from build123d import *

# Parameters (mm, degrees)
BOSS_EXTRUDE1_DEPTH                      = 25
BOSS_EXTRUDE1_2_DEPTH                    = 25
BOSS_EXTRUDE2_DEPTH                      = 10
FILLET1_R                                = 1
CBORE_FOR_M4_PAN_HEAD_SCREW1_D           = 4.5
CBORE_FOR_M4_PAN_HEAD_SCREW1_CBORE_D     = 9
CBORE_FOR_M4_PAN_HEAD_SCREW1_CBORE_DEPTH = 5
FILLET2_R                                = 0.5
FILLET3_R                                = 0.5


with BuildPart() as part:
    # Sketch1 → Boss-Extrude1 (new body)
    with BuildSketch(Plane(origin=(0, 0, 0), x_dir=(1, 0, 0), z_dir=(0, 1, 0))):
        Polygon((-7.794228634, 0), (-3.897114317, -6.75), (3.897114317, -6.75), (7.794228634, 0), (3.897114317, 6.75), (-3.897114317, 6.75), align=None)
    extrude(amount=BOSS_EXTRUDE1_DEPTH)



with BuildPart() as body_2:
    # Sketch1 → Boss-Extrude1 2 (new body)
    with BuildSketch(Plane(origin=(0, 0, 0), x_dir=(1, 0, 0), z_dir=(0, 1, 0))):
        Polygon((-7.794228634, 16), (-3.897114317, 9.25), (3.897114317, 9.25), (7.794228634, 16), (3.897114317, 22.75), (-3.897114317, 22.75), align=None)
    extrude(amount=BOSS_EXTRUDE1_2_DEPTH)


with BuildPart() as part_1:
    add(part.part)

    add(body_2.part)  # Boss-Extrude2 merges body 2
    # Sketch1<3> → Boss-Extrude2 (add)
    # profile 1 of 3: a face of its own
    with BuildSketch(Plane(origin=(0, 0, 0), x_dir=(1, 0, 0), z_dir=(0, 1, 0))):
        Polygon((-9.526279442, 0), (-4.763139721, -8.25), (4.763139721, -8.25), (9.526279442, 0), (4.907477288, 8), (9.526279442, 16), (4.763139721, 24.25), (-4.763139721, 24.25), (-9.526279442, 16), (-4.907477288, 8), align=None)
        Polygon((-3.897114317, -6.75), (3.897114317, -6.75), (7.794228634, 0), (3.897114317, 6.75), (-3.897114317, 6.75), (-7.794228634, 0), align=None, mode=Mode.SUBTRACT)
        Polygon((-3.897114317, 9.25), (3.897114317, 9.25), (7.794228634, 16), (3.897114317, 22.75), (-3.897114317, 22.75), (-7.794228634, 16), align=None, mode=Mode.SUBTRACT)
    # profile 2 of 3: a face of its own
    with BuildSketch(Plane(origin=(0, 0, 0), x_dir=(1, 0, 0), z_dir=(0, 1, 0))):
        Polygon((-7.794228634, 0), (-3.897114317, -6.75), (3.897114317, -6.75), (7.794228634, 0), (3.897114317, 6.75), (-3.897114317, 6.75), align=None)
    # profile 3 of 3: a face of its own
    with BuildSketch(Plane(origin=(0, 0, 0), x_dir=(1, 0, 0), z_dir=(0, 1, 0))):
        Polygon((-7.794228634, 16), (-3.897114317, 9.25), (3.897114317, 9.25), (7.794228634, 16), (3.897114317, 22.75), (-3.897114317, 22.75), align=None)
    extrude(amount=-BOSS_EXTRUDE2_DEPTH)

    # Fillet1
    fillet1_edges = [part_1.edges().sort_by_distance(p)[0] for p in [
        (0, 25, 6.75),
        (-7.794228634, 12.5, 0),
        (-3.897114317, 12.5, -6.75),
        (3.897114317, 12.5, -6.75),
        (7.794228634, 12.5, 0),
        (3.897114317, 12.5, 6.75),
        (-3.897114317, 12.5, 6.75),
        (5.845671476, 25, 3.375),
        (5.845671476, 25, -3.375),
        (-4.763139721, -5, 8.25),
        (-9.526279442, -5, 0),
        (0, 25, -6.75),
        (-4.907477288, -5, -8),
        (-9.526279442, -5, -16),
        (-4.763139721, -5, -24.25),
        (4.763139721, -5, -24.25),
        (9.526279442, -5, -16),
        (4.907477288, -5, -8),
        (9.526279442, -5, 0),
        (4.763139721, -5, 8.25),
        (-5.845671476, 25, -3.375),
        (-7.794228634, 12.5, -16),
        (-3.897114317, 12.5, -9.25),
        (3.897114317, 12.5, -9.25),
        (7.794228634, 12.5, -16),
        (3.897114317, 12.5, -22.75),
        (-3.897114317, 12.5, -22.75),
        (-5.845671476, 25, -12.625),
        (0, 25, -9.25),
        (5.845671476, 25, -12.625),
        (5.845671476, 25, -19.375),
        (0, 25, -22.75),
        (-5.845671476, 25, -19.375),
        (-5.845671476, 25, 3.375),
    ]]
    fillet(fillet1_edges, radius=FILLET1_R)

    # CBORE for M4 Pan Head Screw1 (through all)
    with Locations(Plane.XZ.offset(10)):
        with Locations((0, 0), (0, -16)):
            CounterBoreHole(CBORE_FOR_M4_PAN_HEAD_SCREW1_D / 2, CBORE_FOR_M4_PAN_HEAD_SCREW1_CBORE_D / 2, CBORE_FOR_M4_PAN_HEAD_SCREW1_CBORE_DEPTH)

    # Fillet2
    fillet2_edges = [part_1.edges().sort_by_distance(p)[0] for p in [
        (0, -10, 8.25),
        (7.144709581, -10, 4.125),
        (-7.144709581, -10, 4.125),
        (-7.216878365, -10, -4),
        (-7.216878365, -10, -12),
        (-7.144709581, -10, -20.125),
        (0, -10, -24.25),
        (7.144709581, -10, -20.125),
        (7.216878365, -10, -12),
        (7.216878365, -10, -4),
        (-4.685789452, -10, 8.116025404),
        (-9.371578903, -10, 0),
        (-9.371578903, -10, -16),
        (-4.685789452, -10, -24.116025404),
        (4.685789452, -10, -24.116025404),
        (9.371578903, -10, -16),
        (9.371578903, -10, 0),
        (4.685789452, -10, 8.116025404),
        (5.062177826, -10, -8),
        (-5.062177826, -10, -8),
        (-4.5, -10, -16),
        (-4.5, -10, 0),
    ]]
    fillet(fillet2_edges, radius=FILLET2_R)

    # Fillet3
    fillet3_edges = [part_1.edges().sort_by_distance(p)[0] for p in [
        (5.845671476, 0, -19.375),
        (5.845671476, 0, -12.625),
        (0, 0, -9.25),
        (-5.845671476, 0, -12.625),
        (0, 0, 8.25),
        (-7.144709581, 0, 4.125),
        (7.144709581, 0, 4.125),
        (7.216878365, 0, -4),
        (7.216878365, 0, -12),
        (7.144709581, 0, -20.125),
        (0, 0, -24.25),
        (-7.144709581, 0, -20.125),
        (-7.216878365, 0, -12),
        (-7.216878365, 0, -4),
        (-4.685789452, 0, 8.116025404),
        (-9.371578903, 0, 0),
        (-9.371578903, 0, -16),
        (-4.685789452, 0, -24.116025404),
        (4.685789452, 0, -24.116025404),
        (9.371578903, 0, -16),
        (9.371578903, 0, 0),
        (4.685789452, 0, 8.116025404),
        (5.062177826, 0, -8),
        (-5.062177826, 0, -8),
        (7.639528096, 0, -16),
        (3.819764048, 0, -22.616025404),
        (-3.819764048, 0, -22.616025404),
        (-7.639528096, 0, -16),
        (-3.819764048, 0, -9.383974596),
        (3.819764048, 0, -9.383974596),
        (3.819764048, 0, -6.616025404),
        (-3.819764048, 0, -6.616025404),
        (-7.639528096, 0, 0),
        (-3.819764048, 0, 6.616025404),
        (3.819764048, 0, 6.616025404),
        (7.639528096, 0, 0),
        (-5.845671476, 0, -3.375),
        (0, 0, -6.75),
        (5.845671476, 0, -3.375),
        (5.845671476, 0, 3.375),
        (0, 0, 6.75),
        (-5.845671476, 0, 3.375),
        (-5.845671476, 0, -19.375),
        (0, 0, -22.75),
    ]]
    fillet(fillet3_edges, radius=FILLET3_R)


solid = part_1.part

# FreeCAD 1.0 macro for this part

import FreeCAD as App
import Part
import Sketcher
from FreeCAD import Vector
Q = App.Units.Quantity


def edges_at(feature, points):
    """Names of the edges that pass closest to the given points."""
    edges = feature.Shape.Edges
    near = lambda p: min(range(len(edges)), key=lambda i: edges[i].distToShape(Part.Vertex(*p))[0])
    return sorted({f"Edge{near(p) + 1}" for p in points})


def add_polygon(sketch, points):
    """Adds a closed chain of lines whose ends are joined by coincident constraints."""
    first, n = sketch.GeometryCount, len(points)
    for a, b in zip(points, points[1:] + points[:1]):
        sketch.addGeometry(Part.LineSegment(App.Vector(*a, 0), App.Vector(*b, 0)), False)
    for i in range(n):
        sketch.addConstraint(Sketcher.Constraint("Coincident", first + i, 2, first + (i + 1) % n, 1))

doc = App.newDocument("Part")
params = doc.addObject("Spreadsheet::Sheet", "Params")
for row, (alias, value) in enumerate([
    ("pad1_length", "25 mm"),
    ("pad2_length", "25 mm"),
    ("pad3_length", "10 mm"),
    ("fillet_radius", "1 mm"),
    ("sketch4_diameter", "4.5 mm"),
    ("hole_diameter", "4.5 mm"),
    ("hole_cbore_diameter", "9 mm"),
    ("hole_cbore_depth", "5 mm"),
    ("fillet2_radius", "0.5 mm"),
    ("fillet3_radius", "0.5 mm"),
], start=1):
    params.set(f"A{row}", alias)
    params.set(f"B{row}", "=" + value)
    params.setAlias(f"B{row}", alias)

body = doc.addObject("PartDesign::Body", "Body")

# Sketch on XZ plane
sketch1 = body.newObject("Sketcher::SketchObject", "Sketch")
sketch1.AttachmentSupport = (doc.getObject("XZ_Plane"), [""])
sketch1.MapMode = "FlatFace"
add_polygon(sketch1, [(-8, 0), (-4, 7), (4, 7), (8, 0), (4, -7), (-4, -7)])  # lines 0-5
sketch1.addConstraint(Sketcher.Constraint("Horizontal", 1))
sketch1.addConstraint(Sketcher.Constraint("Horizontal", 4))
sketch1.addConstraint(Sketcher.Constraint("Symmetric", 0, 2, 3, 2, -1, 1))
sketch1.addConstraint(Sketcher.Constraint("Symmetric", 2, 2, 5, 2, -1, 1))
sketch1.addConstraint(Sketcher.Constraint("PointOnObject", 2, 2, -1))
sketch1.addConstraint(Sketcher.Constraint("Parallel", 2, 5))
sketch1.addConstraint(Sketcher.Constraint("Vertical", 1, 2, 3, 2))
sketch1.addConstraint(Sketcher.Constraint("Angle", 0, Q("60 deg")))
sketch1.addConstraint(Sketcher.Constraint("DistanceY", 3, 2, 1, 2, 13.5))
sketch1.addConstraint(Sketcher.Constraint("DistanceX", 1, 1, 1, 2, 7.794229))
pad1 = body.newObject("PartDesign::Pad", "Pad")
pad1.Profile = sketch1
pad1.setExpression("Length", "Params.pad1_length")
pad1.Reversed = True
body2 = doc.addObject("PartDesign::Body", "Body001")

# Sketch on XZ plane
sketch2 = body2.newObject("Sketcher::SketchObject", "Sketch001")
sketch2.AttachmentSupport = (doc.getObject("XZ_Plane001"), [""])
sketch2.MapMode = "FlatFace"
add_polygon(sketch2, [(-8, -16), (-4, -9), (4, -9), (8, -16), (4, -23), (-4, -23)])  # lines 0-5
sketch2.addConstraint(Sketcher.Constraint("Horizontal", 1))
sketch2.addConstraint(Sketcher.Constraint("Horizontal", 4))
sketch2.addConstraint(Sketcher.Constraint("Symmetric", 2, 2, 5, 2, -2))
sketch2.addConstraint(Sketcher.Constraint("Parallel", 0, 3))
sketch2.addConstraint(Sketcher.Constraint("Parallel", 2, 5))
sketch2.addConstraint(Sketcher.Constraint("Vertical", 1, 2, 3, 2))
sketch2.addConstraint(Sketcher.Constraint("Vertical", 0, 2, 4, 2))
sketch2.addConstraint(Sketcher.Constraint("Angle", 0, Q("60 deg")))
sketch2.addConstraint(Sketcher.Constraint("DistanceY", 2, 2, -1, 1, 16.0))
sketch2.addConstraint(Sketcher.Constraint("DistanceY", 3, 2, 1, 2, 13.5))
sketch2.addConstraint(Sketcher.Constraint("DistanceX", 1, 1, 1, 2, 7.794229))
pad2 = body2.newObject("PartDesign::Pad", "Pad001")
pad2.Profile = sketch2
pad2.setExpression("Length", "Params.pad2_length")
pad2.Reversed = True
body.AllowCompound = True
doc.recompute()

boolean = body.newObject("PartDesign::Boolean", "Boolean")
boolean.Type = "Fuse"
boolean.addObjects([body2])

# Sketch on XZ plane
sketch3 = body.newObject("Sketcher::SketchObject", "Sketch002")
sketch3.AttachmentSupport = (doc.getObject("XZ_Plane"), [""])
sketch3.MapMode = "FlatFace"
add_polygon(sketch3, [(-10, 0), (-5, 8), (5, 8), (10, 0), (5, -8), (10, -16), (5, -24), (-5, -24), (-10, -16), (-5, -8)])  # lines 0-9
sketch3.addConstraint(Sketcher.Constraint("Horizontal", 1))
sketch3.addConstraint(Sketcher.Constraint("Horizontal", 6))
sketch3.addConstraint(Sketcher.Constraint("Symmetric", 2, 2, 9, 2, -1, 1))
sketch3.addConstraint(Sketcher.Constraint("Symmetric", 4, 2, 7, 2, -2))
sketch3.addConstraint(Sketcher.Constraint("Symmetric", 3, 2, 8, 2, -2))
sketch3.addConstraint(Sketcher.Constraint("PointOnObject", 2, 2, -1))
sketch3.addConstraint(Sketcher.Constraint("Parallel", 0, 3))
sketch3.addConstraint(Sketcher.Constraint("Parallel", 2, 4))
sketch3.addConstraint(Sketcher.Constraint("Parallel", 3, 5))
sketch3.addConstraint(Sketcher.Constraint("Parallel", 4, 7))
sketch3.addConstraint(Sketcher.Constraint("Parallel", 5, 8))
sketch3.addConstraint(Sketcher.Constraint("Vertical", 2, 2, 4, 2))
sketch3.addConstraint(Sketcher.Constraint("Vertical", 1, 2, 5, 2))
sketch3.addConstraint(Sketcher.Constraint("Angle", 0, Q("60 deg")))
sketch3.addConstraint(Sketcher.Constraint("DistanceY", 3, 2, -1, 1, 8.0))
sketch3.addConstraint(Sketcher.Constraint("DistanceY", 5, 2, 1, 2, 32.5))
sketch3.addConstraint(Sketcher.Constraint("DistanceX", 1, 1, 1, 2, 9.526279))
pad3 = body.newObject("PartDesign::Pad", "Pad002")
pad3.Profile = sketch3
pad3.setExpression("Length", "Params.pad3_length")
doc.recompute()

fillet = body.newObject("PartDesign::Fillet", "Fillet")
fillet.Base = (pad3, edges_at(pad3, [
    (0, 25, 6.75),
    (-7.794, 12.5, 0),
    (-3.897, 12.5, -6.75),
    (3.897, 12.5, -6.75),
    (7.794, 12.5, 0),
    (3.897, 12.5, 6.75),
    (-3.897, 12.5, 6.75),
    (5.846, 25, 3.375),
    (5.846, 25, -3.375),
    (-4.763, -5, 8.25),
    (-9.526, -5, 0),
    (0, 25, -6.75),
    (-4.907, -5, -8),
    (-9.526, -5, -16),
    (-4.763, -5, -24.25),
    (4.763, -5, -24.25),
    (9.526, -5, -16),
    (4.907, -5, -8),
    (9.526, -5, 0),
    (4.763, -5, 8.25),
    (-5.846, 25, -3.375),
    (-7.794, 12.5, -16),
    (-3.897, 12.5, -9.25),
    (3.897, 12.5, -9.25),
    (7.794, 12.5, -16),
    (3.897, 12.5, -22.75),
    (-3.897, 12.5, -22.75),
    (-5.846, 25, -12.625),
    (0, 25, -9.25),
    (5.846, 25, -12.625),
    (5.846, 25, -19.375),
    (0, 25, -22.75),
    (-5.846, 25, -19.375),
    (-5.846, 25, 3.375),
]))
fillet.setExpression("Radius", "Params.fillet_radius")

# Sketch on XZ plane
sketch4 = body.newObject("Sketcher::SketchObject", "Sketch003")
sketch4.AttachmentSupport = (doc.getObject("XZ_Plane"), [""])
sketch4.MapMode = "FlatFace"
sketch4.AttachmentOffset = App.Placement(Vector(0, 0, 10), App.Rotation())
sketch4.addGeometry(Part.Circle(Vector(0, 0, 0), Vector(0, 0, 1), 2.2), False)
sketch4.addGeometry(Part.Circle(Vector(0, -16, 0), Vector(0, 0, 1), 2.2), False)
sketch4.addConstraint(Sketcher.Constraint("Coincident", 0, 3, -1, 1))
sketch4.addConstraint(Sketcher.Constraint("Equal", 0, 1))
sketch4.addConstraint(Sketcher.Constraint("PointOnObject", 1, 3, -2))
sketch4.addConstraint(Sketcher.Constraint("Diameter", 0, 4.5))
sketch4.addConstraint(Sketcher.Constraint("DistanceY", 1, 3, -1, 1, 16.0))
sketch4.setExpression("Constraints[3]", "Params.sketch4_diameter")
doc.recompute()
hole = body.newObject("PartDesign::Hole", "Hole")
hole.Profile = sketch4
hole.ThreadType = "None"
hole.setExpression("Diameter", "Params.hole_diameter")
hole.DepthType = "ThroughAll"
hole.HoleCutType = "Counterbore"
hole.setExpression("HoleCutDiameter", "Params.hole_cbore_diameter")
hole.setExpression("HoleCutDepth", "Params.hole_cbore_depth")
doc.recompute()

fillet2 = body.newObject("PartDesign::Fillet", "Fillet001")
fillet2.Base = (hole, edges_at(hole, [
    (0, -10, 8.25),
    (7.145, -10, 4.125),
    (-7.145, -10, 4.125),
    (-7.217, -10, -4),
    (-7.217, -10, -12),
    (-7.145, -10, -20.125),
    (0, -10, -24.25),
    (7.145, -10, -20.125),
    (7.217, -10, -12),
    (7.217, -10, -4),
    (-4.686, -10, 8.116),
    (-9.372, -10, 0),
    (-9.372, -10, -16),
    (-4.686, -10, -24.116),
    (4.686, -10, -24.116),
    (9.372, -10, -16),
    (9.372, -10, 0),
    (4.686, -10, 8.116),
    (5.062, -10, -8),
    (-5.062, -10, -8),
    (-4.5, -10, -16),
    (-4.5, -10, 0),
]))
fillet2.setExpression("Radius", "Params.fillet2_radius")
doc.recompute()

fillet3 = body.newObject("PartDesign::Fillet", "Fillet002")
fillet3.Base = (fillet2, edges_at(fillet2, [
    (5.846, 0, -19.375),
    (5.846, 0, -12.625),
    (0, 0, -9.25),
    (-5.846, 0, -12.625),
    (0, 0, 8.25),
    (-7.145, 0, 4.125),
    (7.145, 0, 4.125),
    (7.217, 0, -4),
    (7.217, 0, -12),
    (7.145, 0, -20.125),
    (0, 0, -24.25),
    (-7.145, 0, -20.125),
    (-7.217, 0, -12),
    (-7.217, 0, -4),
    (-4.686, 0, 8.116),
    (-9.372, 0, 0),
    (-9.372, 0, -16),
    (-4.686, 0, -24.116),
    (4.686, 0, -24.116),
    (9.372, 0, -16),
    (9.372, 0, 0),
    (4.686, 0, 8.116),
    (5.062, 0, -8),
    (-5.062, 0, -8),
    (7.64, 0, -16),
    (3.82, 0, -22.616),
    (-3.82, 0, -22.616),
    (-7.64, 0, -16),
    (-3.82, 0, -9.384),
    (3.82, 0, -9.384),
    (3.82, 0, -6.616),
    (-3.82, 0, -6.616),
    (-7.64, 0, 0),
    (-3.82, 0, 6.616),
    (3.82, 0, 6.616),
    (7.64, 0, 0),
    (-5.846, 0, -3.375),
    (0, 0, -6.75),
    (5.846, 0, -3.375),
    (5.846, 0, 3.375),
    (0, 0, 6.75),
    (-5.846, 0, 3.375),
    (-5.846, 0, -19.375),
    (0, 0, -22.75),
]))
fillet3.setExpression("Radius", "Params.fillet3_radius")

doc.recompute()
